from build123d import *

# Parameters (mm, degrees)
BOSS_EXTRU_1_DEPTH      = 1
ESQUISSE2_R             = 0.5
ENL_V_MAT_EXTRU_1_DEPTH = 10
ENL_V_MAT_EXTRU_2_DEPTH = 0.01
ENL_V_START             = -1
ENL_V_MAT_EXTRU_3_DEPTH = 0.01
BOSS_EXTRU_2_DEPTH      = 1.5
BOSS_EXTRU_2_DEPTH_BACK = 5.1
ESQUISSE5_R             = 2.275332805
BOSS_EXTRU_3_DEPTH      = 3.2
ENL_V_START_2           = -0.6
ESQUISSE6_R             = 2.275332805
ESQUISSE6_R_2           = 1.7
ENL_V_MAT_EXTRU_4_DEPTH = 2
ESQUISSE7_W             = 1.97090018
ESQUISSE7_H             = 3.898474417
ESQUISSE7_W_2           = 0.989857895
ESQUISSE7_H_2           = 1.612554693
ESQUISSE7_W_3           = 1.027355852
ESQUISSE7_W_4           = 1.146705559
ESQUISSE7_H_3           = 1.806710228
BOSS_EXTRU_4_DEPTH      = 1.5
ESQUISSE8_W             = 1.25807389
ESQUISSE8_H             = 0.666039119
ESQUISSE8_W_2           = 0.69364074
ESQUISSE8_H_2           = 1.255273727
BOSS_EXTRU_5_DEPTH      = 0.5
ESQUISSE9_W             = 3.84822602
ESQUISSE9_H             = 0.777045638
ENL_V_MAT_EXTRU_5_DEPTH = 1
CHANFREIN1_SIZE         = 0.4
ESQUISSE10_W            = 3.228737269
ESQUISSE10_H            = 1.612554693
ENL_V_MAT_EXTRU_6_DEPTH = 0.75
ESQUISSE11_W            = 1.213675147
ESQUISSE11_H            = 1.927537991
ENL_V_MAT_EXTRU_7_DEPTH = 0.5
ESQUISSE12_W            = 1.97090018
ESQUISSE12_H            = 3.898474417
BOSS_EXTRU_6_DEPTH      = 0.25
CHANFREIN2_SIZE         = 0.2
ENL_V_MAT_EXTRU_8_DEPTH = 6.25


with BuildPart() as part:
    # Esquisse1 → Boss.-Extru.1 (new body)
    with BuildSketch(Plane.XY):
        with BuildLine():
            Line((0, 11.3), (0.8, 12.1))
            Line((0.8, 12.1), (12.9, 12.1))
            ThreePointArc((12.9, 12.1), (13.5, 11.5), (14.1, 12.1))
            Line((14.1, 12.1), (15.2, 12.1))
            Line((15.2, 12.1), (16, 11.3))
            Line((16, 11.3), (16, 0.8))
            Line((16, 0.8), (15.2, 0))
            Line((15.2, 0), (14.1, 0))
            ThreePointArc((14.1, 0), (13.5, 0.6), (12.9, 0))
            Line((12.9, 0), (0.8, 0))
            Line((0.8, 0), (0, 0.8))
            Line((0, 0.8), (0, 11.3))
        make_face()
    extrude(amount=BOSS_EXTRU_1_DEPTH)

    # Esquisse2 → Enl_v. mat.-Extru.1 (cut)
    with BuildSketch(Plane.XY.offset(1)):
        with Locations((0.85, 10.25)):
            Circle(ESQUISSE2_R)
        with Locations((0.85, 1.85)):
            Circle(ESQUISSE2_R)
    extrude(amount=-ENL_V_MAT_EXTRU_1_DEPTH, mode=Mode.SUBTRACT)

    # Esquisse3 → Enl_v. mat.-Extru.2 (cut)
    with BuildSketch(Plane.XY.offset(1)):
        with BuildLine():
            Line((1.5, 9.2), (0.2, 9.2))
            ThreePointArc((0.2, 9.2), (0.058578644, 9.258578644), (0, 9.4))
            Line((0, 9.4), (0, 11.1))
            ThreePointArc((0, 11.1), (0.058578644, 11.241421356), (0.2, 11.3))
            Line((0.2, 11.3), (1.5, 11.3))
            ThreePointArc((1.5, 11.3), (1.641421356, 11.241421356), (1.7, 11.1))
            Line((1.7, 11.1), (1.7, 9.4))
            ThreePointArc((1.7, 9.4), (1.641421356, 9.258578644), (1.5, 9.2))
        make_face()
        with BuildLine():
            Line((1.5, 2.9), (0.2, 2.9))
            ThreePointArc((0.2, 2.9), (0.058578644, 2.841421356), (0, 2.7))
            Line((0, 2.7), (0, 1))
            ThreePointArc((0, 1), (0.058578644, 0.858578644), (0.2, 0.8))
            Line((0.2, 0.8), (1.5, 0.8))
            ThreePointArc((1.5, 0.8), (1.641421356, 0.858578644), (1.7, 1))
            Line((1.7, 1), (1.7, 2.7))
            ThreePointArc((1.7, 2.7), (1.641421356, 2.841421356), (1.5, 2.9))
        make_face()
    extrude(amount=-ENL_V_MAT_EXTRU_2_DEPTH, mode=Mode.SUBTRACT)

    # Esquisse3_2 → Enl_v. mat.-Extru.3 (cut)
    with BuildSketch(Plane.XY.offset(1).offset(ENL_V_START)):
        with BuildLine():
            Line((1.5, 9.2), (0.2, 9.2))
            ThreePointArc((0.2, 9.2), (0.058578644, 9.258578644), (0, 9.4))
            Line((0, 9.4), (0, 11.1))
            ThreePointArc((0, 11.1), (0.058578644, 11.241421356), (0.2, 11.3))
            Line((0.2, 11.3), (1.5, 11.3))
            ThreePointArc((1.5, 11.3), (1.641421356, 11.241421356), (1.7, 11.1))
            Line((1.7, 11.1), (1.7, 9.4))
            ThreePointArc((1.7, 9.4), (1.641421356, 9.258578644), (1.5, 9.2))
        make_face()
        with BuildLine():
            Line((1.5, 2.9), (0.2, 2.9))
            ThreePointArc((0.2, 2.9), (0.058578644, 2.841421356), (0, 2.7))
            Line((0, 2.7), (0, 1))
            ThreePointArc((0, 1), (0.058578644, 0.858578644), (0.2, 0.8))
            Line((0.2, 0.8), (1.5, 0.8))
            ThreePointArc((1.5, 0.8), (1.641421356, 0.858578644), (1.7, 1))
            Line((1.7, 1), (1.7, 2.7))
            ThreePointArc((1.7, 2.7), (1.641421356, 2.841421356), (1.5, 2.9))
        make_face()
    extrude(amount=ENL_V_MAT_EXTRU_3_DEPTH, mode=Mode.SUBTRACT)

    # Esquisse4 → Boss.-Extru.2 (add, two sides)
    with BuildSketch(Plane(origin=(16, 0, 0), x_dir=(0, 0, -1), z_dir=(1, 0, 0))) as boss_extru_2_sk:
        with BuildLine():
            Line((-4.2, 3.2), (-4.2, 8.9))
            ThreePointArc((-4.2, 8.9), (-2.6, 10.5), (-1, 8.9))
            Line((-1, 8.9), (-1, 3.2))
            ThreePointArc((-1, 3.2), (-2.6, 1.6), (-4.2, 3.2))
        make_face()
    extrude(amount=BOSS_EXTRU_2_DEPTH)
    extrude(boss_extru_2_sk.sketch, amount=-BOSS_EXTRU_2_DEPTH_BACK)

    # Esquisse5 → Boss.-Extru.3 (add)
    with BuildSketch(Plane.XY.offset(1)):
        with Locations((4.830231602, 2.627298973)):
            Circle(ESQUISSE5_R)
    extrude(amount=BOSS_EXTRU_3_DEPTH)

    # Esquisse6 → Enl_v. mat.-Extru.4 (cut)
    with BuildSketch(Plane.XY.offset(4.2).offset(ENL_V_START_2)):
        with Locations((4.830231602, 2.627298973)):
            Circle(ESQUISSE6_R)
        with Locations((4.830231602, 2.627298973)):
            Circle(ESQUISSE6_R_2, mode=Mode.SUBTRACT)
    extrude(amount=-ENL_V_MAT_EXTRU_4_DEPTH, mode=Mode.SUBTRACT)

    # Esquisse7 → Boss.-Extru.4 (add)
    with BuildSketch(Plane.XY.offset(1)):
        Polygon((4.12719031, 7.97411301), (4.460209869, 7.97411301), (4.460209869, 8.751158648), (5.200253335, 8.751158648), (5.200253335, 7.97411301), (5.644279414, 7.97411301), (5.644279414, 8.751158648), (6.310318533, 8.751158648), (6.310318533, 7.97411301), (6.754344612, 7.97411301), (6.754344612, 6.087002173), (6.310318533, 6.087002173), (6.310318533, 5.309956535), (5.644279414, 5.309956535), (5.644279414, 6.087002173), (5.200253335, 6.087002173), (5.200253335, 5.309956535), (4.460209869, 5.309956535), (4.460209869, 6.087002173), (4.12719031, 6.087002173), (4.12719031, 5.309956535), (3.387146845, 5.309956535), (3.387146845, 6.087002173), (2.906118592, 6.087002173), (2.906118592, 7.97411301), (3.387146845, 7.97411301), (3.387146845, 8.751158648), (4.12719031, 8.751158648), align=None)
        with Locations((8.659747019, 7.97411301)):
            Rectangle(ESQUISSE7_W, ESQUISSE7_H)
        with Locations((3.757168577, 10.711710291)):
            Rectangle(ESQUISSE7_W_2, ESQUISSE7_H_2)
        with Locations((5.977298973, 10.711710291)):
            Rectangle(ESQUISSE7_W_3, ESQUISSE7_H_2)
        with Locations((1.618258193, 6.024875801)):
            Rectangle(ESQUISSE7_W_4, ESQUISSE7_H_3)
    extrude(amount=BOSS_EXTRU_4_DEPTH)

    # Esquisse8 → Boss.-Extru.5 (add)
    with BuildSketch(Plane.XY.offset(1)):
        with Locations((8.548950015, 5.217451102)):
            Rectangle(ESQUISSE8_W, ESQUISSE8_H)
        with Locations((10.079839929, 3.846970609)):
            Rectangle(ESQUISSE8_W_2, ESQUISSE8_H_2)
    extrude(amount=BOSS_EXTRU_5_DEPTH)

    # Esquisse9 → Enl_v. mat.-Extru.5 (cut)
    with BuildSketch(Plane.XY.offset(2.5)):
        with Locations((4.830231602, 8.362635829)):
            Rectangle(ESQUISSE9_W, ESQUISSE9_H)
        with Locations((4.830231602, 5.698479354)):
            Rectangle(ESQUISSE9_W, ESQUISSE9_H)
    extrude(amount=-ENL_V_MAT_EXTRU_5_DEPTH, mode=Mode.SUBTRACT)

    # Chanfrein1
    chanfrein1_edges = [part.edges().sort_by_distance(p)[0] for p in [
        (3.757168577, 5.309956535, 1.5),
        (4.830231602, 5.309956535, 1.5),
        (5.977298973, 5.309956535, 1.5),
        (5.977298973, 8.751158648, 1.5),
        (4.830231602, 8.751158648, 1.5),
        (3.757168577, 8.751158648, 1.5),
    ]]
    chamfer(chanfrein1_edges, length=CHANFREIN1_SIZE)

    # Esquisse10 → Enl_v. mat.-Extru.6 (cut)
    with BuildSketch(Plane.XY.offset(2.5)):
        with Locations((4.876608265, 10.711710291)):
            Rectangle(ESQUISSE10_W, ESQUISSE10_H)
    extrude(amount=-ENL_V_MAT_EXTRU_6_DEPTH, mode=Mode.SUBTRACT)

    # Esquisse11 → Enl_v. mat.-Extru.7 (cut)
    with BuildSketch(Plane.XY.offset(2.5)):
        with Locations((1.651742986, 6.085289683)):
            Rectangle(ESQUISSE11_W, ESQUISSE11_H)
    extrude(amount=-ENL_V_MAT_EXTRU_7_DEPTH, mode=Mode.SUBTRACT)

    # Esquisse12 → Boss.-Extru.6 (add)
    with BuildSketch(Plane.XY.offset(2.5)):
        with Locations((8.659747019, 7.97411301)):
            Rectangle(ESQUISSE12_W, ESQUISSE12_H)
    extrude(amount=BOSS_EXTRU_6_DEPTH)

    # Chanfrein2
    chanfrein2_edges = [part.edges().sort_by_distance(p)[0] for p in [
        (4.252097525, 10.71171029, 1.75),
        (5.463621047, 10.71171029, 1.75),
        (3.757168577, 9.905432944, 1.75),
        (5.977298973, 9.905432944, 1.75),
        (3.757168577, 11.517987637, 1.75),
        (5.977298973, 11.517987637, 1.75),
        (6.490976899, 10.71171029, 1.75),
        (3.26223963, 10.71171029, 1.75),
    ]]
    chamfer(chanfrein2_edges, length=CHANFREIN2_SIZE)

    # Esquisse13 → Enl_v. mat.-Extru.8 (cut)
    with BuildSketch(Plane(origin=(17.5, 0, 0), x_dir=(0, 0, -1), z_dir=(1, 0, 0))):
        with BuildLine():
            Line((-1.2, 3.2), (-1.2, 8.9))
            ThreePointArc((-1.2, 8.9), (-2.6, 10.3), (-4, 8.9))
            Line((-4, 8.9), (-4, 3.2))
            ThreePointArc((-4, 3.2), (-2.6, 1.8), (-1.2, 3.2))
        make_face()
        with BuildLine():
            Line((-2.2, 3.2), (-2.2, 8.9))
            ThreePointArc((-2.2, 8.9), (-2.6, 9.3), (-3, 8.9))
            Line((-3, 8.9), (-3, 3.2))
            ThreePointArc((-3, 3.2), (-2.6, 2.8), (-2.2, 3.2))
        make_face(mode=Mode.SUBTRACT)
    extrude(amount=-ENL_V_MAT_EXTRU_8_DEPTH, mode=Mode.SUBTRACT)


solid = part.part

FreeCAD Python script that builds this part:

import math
import FreeCAD as App
import Part
import Sketcher
from FreeCAD import Vector


def edges_at(feature, points):
    """Names of the edges that pass closest to the given points."""
    edges = feature.Shape.Edges
    near = lambda p: min(range(len(edges)), key=lambda i: edges[i].distToShape(Part.Vertex(*p))[0])
    return sorted({f"Edge{near(p) + 1}" for p in points})


def add_polygon(sketch, points):
    """Adds a closed chain of lines whose ends are joined by coincident constraints."""
    first, n = sketch.GeometryCount, len(points)
    for a, b in zip(points, points[1:] + points[:1]):
        sketch.addGeometry(Part.LineSegment(App.Vector(*a, 0), App.Vector(*b, 0)), False)
    for i in range(n):
        sketch.addConstraint(Sketcher.Constraint("Coincident", first + i, 2, first + (i + 1) % n, 1))

doc = App.newDocument("Part")
body = doc.addObject("PartDesign::Body", "Body")

# Sketch on XY plane
sketch1 = body.newObject("Sketcher::SketchObject", "Sketch")
sketch1.AttachmentSupport = (doc.getObject("XY_Plane"), [""])
sketch1.MapMode = "FlatFace"
sketch1.addGeometry([
    Part.LineSegment(Vector(0.8, 12.1, 0), Vector(0, 11.3, 0)),  # 0
    Part.LineSegment(Vector(0, 11.3, 0), Vector(0, 0.8, 0)),  # 1
    Part.LineSegment(Vector(0, 0.8, 0), Vector(0.8, 0, 0)),  # 2
    Part.LineSegment(Vector(0.8, 0, 0), Vector(12.9, 0, 0)),  # 3
    Part.ArcOfCircle(Part.Circle(Vector(13.5, 0, 0), Vector(0, 0, 1), 0.6), math.radians(0), math.radians(180)),  # 4
    Part.LineSegment(Vector(14.1, 0, 0), Vector(15.2, 0, 0)),  # 5
    Part.LineSegment(Vector(15.2, 0, 0), Vector(16, 0.8, 0)),  # 6
    Part.LineSegment(Vector(16, 0.8, 0), Vector(16, 11.3, 0)),  # 7
    Part.LineSegment(Vector(16, 11.3, 0), Vector(15.2, 12.1, 0)),  # 8
    Part.LineSegment(Vector(15.2, 12.1, 0), Vector(14.1, 12.1, 0)),  # 9
    Part.ArcOfCircle(Part.Circle(Vector(13.5, 12.1, 0), Vector(0, 0, 1), 0.6), math.radians(180), math.radians(360)),  # 10
    Part.LineSegment(Vector(12.9, 12.1, 0), Vector(0.8, 12.1, 0)),  # 11
], False)
sketch1.addConstraint([
    Sketcher.Constraint("Coincident", 0, 2, 1, 1),
    Sketcher.Constraint("Coincident", 1, 2, 2, 1),
    Sketcher.Constraint("Coincident", 2, 2, 3, 1),
    Sketcher.Constraint("Coincident", 3, 2, 4, 2),
    Sketcher.Constraint("Coincident", 4, 1, 5, 1),
    Sketcher.Constraint("Coincident", 5, 2, 6, 1),
    Sketcher.Constraint("Coincident", 6, 2, 7, 1),
    Sketcher.Constraint("Coincident", 7, 2, 8, 1),
    Sketcher.Constraint("Coincident", 8, 2, 9, 1),
    Sketcher.Constraint("Coincident", 9, 2, 10, 2),
    Sketcher.Constraint("Coincident", 10, 1, 11, 1),
    Sketcher.Constraint("Coincident", 11, 2, 0, 1),
    Sketcher.Constraint("Vertical", 1),
    Sketcher.Constraint("Horizontal", 3),
    Sketcher.Constraint("Horizontal", 5),
    Sketcher.Constraint("Vertical", 7),
    Sketcher.Constraint("Horizontal", 9),
    Sketcher.Constraint("Horizontal", 11),
    Sketcher.Constraint("Equal", 4, 10),
    Sketcher.Constraint("PointOnObject", 4, 3, -1),
    Sketcher.Constraint("PointOnObject", 0, 2, -2),
    Sketcher.Constraint("PointOnObject", 2, 2, -1),
    Sketcher.Constraint("PointOnObject", 4, 1, -1),
    Sketcher.Constraint("Perpendicular", 0, 2),
    Sketcher.Constraint("Perpendicular", 2, 6),
    Sketcher.Constraint("Perpendicular", 6, 8),
    Sketcher.Constraint("Horizontal", 1, 2, 6, 2),
    Sketcher.Constraint("Horizontal", 0, 2, 7, 2),
    Sketcher.Constraint("Horizontal", 10, 3, 8, 2),
    Sketcher.Constraint("Horizontal", 9, 2, 10, 1),
    Sketcher.Constraint("Vertical", 4, 3, 10, 3),
    Sketcher.Constraint("Vertical", 5, 2, 8, 2),
    Sketcher.Constraint("Vertical", 2, 2, 11, 2),
    Sketcher.Constraint("Radius", 4, 0.6),
    Sketcher.Constraint("DistanceX", 3, 1, 3, 2, 12.1),
    Sketcher.Constraint("DistanceX", 5, 1, 5, 2, 1.1),
    Sketcher.Constraint("DistanceY", 1, 2, 1, 1, 10.5),
    Sketcher.Constraint("DistanceX", -1, 1, 6, 2, 16.0),
])
pad1 = body.newObject("PartDesign::Pad", "Pad")
pad1.Profile = sketch1
pad1.Length = 1

# Sketch on XY plane
sketch2 = body.newObject("Sketcher::SketchObject", "Sketch001")
sketch2.AttachmentSupport = (doc.getObject("XY_Plane"), [""])
sketch2.MapMode = "FlatFace"
sketch2.AttachmentOffset = App.Placement(Vector(0, 0, 1), App.Rotation())
sketch2.addGeometry([
    Part.Circle(Vector(0.85, 10.25, 0), Vector(0, 0, 1), 0.5),
    Part.Circle(Vector(0.85, 1.85, 0), Vector(0, 0, 1), 0.5),
], False)
sketch2.addConstraint([
    Sketcher.Constraint("Equal", 0, 1),
    Sketcher.Constraint("Vertical", 0, 3, 1, 3),
    Sketcher.Constraint("Diameter", 0, 1.0),
    Sketcher.Constraint("DistanceY", 1, 3, 0, 3, 8.4),
    Sketcher.Constraint("DistanceX", -1, 1, 0, 3, 0.85),
    Sketcher.Constraint("DistanceY", -1, 1, 0, 3, 10.25),
])
pocket1 = body.newObject("PartDesign::Pocket", "Pocket")
pocket1.Profile = sketch2
pocket1.Length = 10

# Sketch on XY plane
sketch3 = body.newObject("Sketcher::SketchObject", "Sketch002")
sketch3.AttachmentSupport = (doc.getObject("XY_Plane"), [""])
sketch3.MapMode = "FlatFace"
sketch3.AttachmentOffset = App.Placement(Vector(0, 0, 1), App.Rotation())
sketch3.addGeometry([
    Part.LineSegment(Vector(0.2, 9.2, 0), Vector(1.5, 9.2, 0)),  # 0
    Part.ArcOfCircle(Part.Circle(Vector(1.5, 9.4, 0), Vector(0, 0, 1), 0.2), math.radians(-90), math.radians(0)),  # 1
    Part.LineSegment(Vector(1.7, 9.4, 0), Vector(1.7, 11.1, 0)),  # 2
    Part.ArcOfCircle(Part.Circle(Vector(1.5, 11.1, 0), Vector(0, 0, 1), 0.2), math.radians(0), math.radians(90)),  # 3
    Part.LineSegment(Vector(1.5, 11.3, 0), Vector(0.2, 11.3, 0)),  # 4
    Part.ArcOfCircle(Part.Circle(Vector(0.2, 11.1, 0), Vector(0, 0, 1), 0.2), math.radians(90), math.radians(180)),  # 5
    Part.LineSegment(Vector(0, 11.1, 0), Vector(0, 9.4, 0)),  # 6
    Part.ArcOfCircle(Part.Circle(Vector(0.2, 9.4, 0), Vector(0, 0, 1), 0.2), math.radians(-180), math.radians(-90)),  # 7
    Part.LineSegment(Vector(1.5, 2.9, 0), Vector(0.2, 2.9, 0)),  # 8
    Part.ArcOfCircle(Part.Circle(Vector(0.2, 2.7, 0), Vector(0, 0, 1), 0.2), math.radians(90), math.radians(180)),  # 9
    Part.LineSegment(Vector(0, 2.7, 0), Vector(0, 1, 0)),  # 10
    Part.ArcOfCircle(Part.Circle(Vector(0.2, 1, 0), Vector(0, 0, 1), 0.2), math.radians(-180), math.radians(-90)),  # 11
    Part.LineSegment(Vector(0.2, 0.8, 0), Vector(1.5, 0.8, 0)),  # 12
    Part.ArcOfCircle(Part.Circle(Vector(1.5, 1, 0), Vector(0, 0, 1), 0.2), math.radians(-90), math.radians(0)),  # 13
    Part.LineSegment(Vector(1.7, 1, 0), Vector(1.7, 2.7, 0)),  # 14
    Part.ArcOfCircle(Part.Circle(Vector(1.5, 2.7, 0), Vector(0, 0, 1), 0.2), math.radians(0), math.radians(90)),  # 15
], False)
sketch3.addConstraint([
    Sketcher.Constraint("Tangent", 0, 2, 1, 1),
    Sketcher.Constraint("Tangent", 1, 2, 2, 1),
    Sketcher.Constraint("Tangent", 2, 2, 3, 1),
    Sketcher.Constraint("Tangent", 3, 2, 4, 1),
    Sketcher.Constraint("Tangent", 4, 2, 5, 1),
    Sketcher.Constraint("Tangent", 5, 2, 6, 1),
    Sketcher.Constraint("Tangent", 6, 2, 7, 1),
    Sketcher.Constraint("Tangent", 7, 2, 0, 1),
    Sketcher.Constraint("Tangent", 8, 2, 9, 1),
    Sketcher.Constraint("Tangent", 9, 2, 10, 1),
    Sketcher.Constraint("Tangent", 10, 2, 11, 1),
    Sketcher.Constraint("Tangent", 11, 2, 12, 1),
    Sketcher.Constraint("Tangent", 12, 2, 13, 1),
    Sketcher.Constraint("Tangent", 13, 2, 14, 1),
    Sketcher.Constraint("Tangent", 14, 2, 15, 1),
    Sketcher.Constraint("Tangent", 15, 2, 8, 1),
    Sketcher.Constraint("Horizontal", 0),
    Sketcher.Constraint("Vertical", 2),
    Sketcher.Constraint("Horizontal", 4),
    Sketcher.Constraint("Vertical", 6),
    Sketcher.Constraint("Horizontal", 8),
    Sketcher.Constraint("Vertical", 10),
    Sketcher.Constraint("Horizontal", 12),
    Sketcher.Constraint("Vertical", 14),
    Sketcher.Constraint("Equal", 1, 3),
    Sketcher.Constraint("Equal", 3, 5),
    Sketcher.Constraint("Equal", 5, 7),
    Sketcher.Constraint("Equal", 7, 9),
    Sketcher.Constraint("Equal", 9, 11),
    Sketcher.Constraint("Equal", 11, 13),
    Sketcher.Constraint("Equal", 13, 15),
    Sketcher.Constraint("PointOnObject", 5, 2, -2),
    Sketcher.Constraint("PointOnObject", 9, 2, -2),
    Sketcher.Constraint("Vertical", 3, 3, 13, 3),
    Sketcher.Constraint("Equal", 6, 10),
    Sketcher.Constraint("Radius", 1, 0.2),
    Sketcher.Constraint("DistanceX", 0, 1, 0, 2, 1.3),
    Sketcher.Constraint("DistanceY", 2, 1, 2, 2, 1.7),
    Sketcher.Constraint("DistanceY", -1, 1, 11, 3, 1.0),
    Sketcher.Constraint("DistanceY", -1, 1, 1, 3, 9.4),
])
pocket2 = body.newObject("PartDesign::Pocket", "Pocket001")
pocket2.Profile = sketch3
pocket2.Length = 0.01

# Sketch on XY plane
sketch4 = body.newObject("Sketcher::SketchObject", "Sketch003")
sketch4.AttachmentSupport = (doc.getObject("XY_Plane"), [""])
sketch4.MapMode = "FlatFace"
sketch4.addGeometry([
    Part.LineSegment(Vector(0.2, 9.2, 0), Vector(1.5, 9.2, 0)),  # 0
    Part.ArcOfCircle(Part.Circle(Vector(1.5, 9.4, 0), Vector(0, 0, 1), 0.2), math.radians(-90), math.radians(0)),  # 1
    Part.LineSegment(Vector(1.7, 9.4, 0), Vector(1.7, 11.1, 0)),  # 2
    Part.ArcOfCircle(Part.Circle(Vector(1.5, 11.1, 0), Vector(0, 0, 1), 0.2), math.radians(0), math.radians(90)),  # 3
    Part.LineSegment(Vector(1.5, 11.3, 0), Vector(0.2, 11.3, 0)),  # 4
    Part.ArcOfCircle(Part.Circle(Vector(0.2, 11.1, 0), Vector(0, 0, 1), 0.2), math.radians(90), math.radians(180)),  # 5
    Part.LineSegment(Vector(0, 11.1, 0), Vector(0, 9.4, 0)),  # 6
    Part.ArcOfCircle(Part.Circle(Vector(0.2, 9.4, 0), Vector(0, 0, 1), 0.2), math.radians(-180), math.radians(-90)),  # 7
    Part.LineSegment(Vector(1.5, 2.9, 0), Vector(0.2, 2.9, 0)),  # 8
    Part.ArcOfCircle(Part.Circle(Vector(0.2, 2.7, 0), Vector(0, 0, 1), 0.2), math.radians(90), math.radians(180)),  # 9
    Part.LineSegment(Vector(0, 2.7, 0), Vector(0, 1, 0)),  # 10
    Part.ArcOfCircle(Part.Circle(Vector(0.2, 1, 0), Vector(0, 0, 1), 0.2), math.radians(-180), math.radians(-90)),  # 11
    Part.LineSegment(Vector(0.2, 0.8, 0), Vector(1.5, 0.8, 0)),  # 12
    Part.ArcOfCircle(Part.Circle(Vector(1.5, 1, 0), Vector(0, 0, 1), 0.2), math.radians(-90), math.radians(0)),  # 13
    Part.LineSegment(Vector(1.7, 1, 0), Vector(1.7, 2.7, 0)),  # 14
    Part.ArcOfCircle(Part.Circle(Vector(1.5, 2.7, 0), Vector(0, 0, 1), 0.2), math.radians(0), math.radians(90)),  # 15
], False)
sketch4.addConstraint([
    Sketcher.Constraint("Tangent", 0, 2, 1, 1),
    Sketcher.Constraint("Tangent", 1, 2, 2, 1),
    Sketcher.Constraint("Tangent", 2, 2, 3, 1),
    Sketcher.Constraint("Tangent", 3, 2, 4, 1),
    Sketcher.Constraint("Tangent", 4, 2, 5, 1),
    Sketcher.Constraint("Tangent", 5, 2, 6, 1),
    Sketcher.Constraint("Tangent", 6, 2, 7, 1),
    Sketcher.Constraint("Tangent", 7, 2, 0, 1),
    Sketcher.Constraint("Tangent", 8, 2, 9, 1),
    Sketcher.Constraint("Tangent", 9, 2, 10, 1),
    Sketcher.Constraint("Tangent", 10, 2, 11, 1),
    Sketcher.Constraint("Tangent", 11, 2, 12, 1),
    Sketcher.Constraint("Tangent", 12, 2, 13, 1),
    Sketcher.Constraint("Tangent", 13, 2, 14, 1),
    Sketcher.Constraint("Tangent", 14, 2, 15, 1),
    Sketcher.Constraint("Tangent", 15, 2, 8, 1),
    Sketcher.Constraint("Horizontal", 0),
    Sketcher.Constraint("Vertical", 2),
    Sketcher.Constraint("Horizontal", 4),
    Sketcher.Constraint("Vertical", 6),
    Sketcher.Constraint("Horizontal", 8),
    Sketcher.Constraint("Vertical", 10),
    Sketcher.Constraint("Horizontal", 12),
    Sketcher.Constraint("Vertical", 14),
    Sketcher.Constraint("Equal", 1, 3),
    Sketcher.Constraint("Equal", 3, 5),
    Sketcher.Constraint("Equal", 5, 7),
    Sketcher.Constraint("Equal", 7, 9),
    Sketcher.Constraint("Equal", 9, 11),
    Sketcher.Constraint("Equal", 11, 13),
    Sketcher.Constraint("Equal", 13, 15),
    Sketcher.Constraint("PointOnObject", 5, 2, -2),
    Sketcher.Constraint("PointOnObject", 9, 2, -2),
    Sketcher.Constraint("Vertical", 3, 3, 13, 3),
    Sketcher.Constraint("Equal", 6, 10),
    Sketcher.Constraint("Radius", 1, 0.2),
    Sketcher.Constraint("DistanceX", 0, 1, 0, 2, 1.3),
    Sketcher.Constraint("DistanceY", 2, 1, 2, 2, 1.7),
    Sketcher.Constraint("DistanceY", -1, 1, 11, 3, 1.0),
    Sketcher.Constraint("DistanceY", -1, 1, 1, 3, 9.4),
])
pocket3 = body.newObject("PartDesign::Pocket", "Pocket002")
pocket3.Profile = sketch4
pocket3.Length = 0.01
pocket3.Reversed = True

# Sketch on YZ plane
sketch5 = body.newObject("Sketcher::SketchObject", "Sketch004")
sketch5.AttachmentSupport = (doc.getObject("YZ_Plane"), [""])
sketch5.MapMode = "FlatFace"
sketch5.AttachmentOffset = App.Placement(Vector(0, 0, 16), App.Rotation())
sketch5.addGeometry([
    Part.LineSegment(Vector(8.9, 4.2, 0), Vector(3.2, 4.2, 0)),
    Part.ArcOfCircle(Part.Circle(Vector(3.2, 2.6, 0), Vector(0, 0, 1), 1.6), math.radians(90), math.radians(270)),
    Part.LineSegment(Vector(3.2, 1, 0), Vector(8.9, 1, 0)),
    Part.ArcOfCircle(Part.Circle(Vector(8.9, 2.6, 0), Vector(0, 0, 1), 1.6), math.radians(-90), math.radians(90)),
], False)
sketch5.addConstraint([
    Sketcher.Constraint("Tangent", 0, 2, 1, 1),
    Sketcher.Constraint("Tangent", 1, 2, 2, 1),
    Sketcher.Constraint("Tangent", 2, 2, 3, 1),
    Sketcher.Constraint("Tangent", 3, 2, 0, 1),
    Sketcher.Constraint("Horizontal", 0),
    Sketcher.Constraint("Horizontal", 2),
    Sketcher.Constraint("Radius", 1, 1.6),
    Sketcher.Constraint("DistanceX", 0, 2, 0, 1, 5.7),
    Sketcher.Constraint("DistanceY", -1, 1, 1, 2, 1.0),
    Sketcher.Constraint("DistanceX", -1, 1, 1, 3, 3.2),
])
pad2 = body.newObject("PartDesign::Pad", "Pad001")
pad2.Profile = sketch5
pad2.Type = "TwoLengths"
pad2.Length = 1.5
pad2.Length2 = 5.1

# Sketch on XY plane
sketch6 = body.newObject("Sketcher::SketchObject", "Sketch005")
sketch6.AttachmentSupport = (doc.getObject("XY_Plane"), [""])
sketch6.MapMode = "FlatFace"
sketch6.AttachmentOffset = App.Placement(Vector(0, 0, 1), App.Rotation())
sketch6.addGeometry(Part.Circle(Vector(4.830232, 2.627299, 0), Vector(0, 0, 1), 2.275333), False)
sketch6.addConstraint([
    Sketcher.Constraint("Diameter", 0, 4.550666),
    Sketcher.Constraint("DistanceY", -1, 1, 0, 3, 2.627299),
    Sketcher.Constraint("DistanceX", -1, 1, 0, 3, 4.830232),
])
pad3 = body.newObject("PartDesign::Pad", "Pad002")
pad3.Profile = sketch6
pad3.Length = 3.2

# Sketch on XY plane
sketch7 = body.newObject("Sketcher::SketchObject", "Sketch006")
sketch7.AttachmentSupport = (doc.getObject("XY_Plane"), [""])
sketch7.MapMode = "FlatFace"
sketch7.AttachmentOffset = App.Placement(Vector(0, 0, 3.6), App.Rotation())
sketch7.addGeometry([
    Part.Circle(Vector(4.830232, 2.627299, 0), Vector(0, 0, 1), 2.275333),
    Part.Circle(Vector(4.830232, 2.627299, 0), Vector(0, 0, 1), 1.7),
], False)
sketch7.addConstraint([
    Sketcher.Constraint("Coincident", 1, 3, 0, 3),
    Sketcher.Constraint("Diameter", 1, 3.4),
    Sketcher.Constraint("Diameter", 0, 4.550666),
    Sketcher.Constraint("DistanceY", -1, 1, 0, 3, 2.627299),
    Sketcher.Constraint("DistanceX", -1, 1, 0, 3, 4.830232),
])
pocket4 = body.newObject("PartDesign::Pocket", "Pocket003")
pocket4.Profile = sketch7
pocket4.Length = 2

# Sketch on XY plane
sketch8 = body.newObject("Sketcher::SketchObject", "Sketch007")
sketch8.AttachmentSupport = (doc.getObject("XY_Plane"), [""])
sketch8.MapMode = "FlatFace"
sketch8.AttachmentOffset = App.Placement(Vector(0, 0, 1), App.Rotation())
add_polygon(sketch8, [(4.46021, 7.974113), (4.12719, 7.974113), (4.12719, 8.751159), (3.387147, 8.751159), (3.387147, 7.974113), (2.906119, 7.974113), (2.906119, 6.087002), (3.387147, 6.087002), (3.387147, 5.309957), (4.12719, 5.309957), (4.12719, 6.087002), (4.46021, 6.087002), (4.46021, 5.309957), (5.200253, 5.309957), (5.200253, 6.087002), (5.644279, 6.087002), (5.644279, 5.309957), (6.310319, 5.309957), (6.310319, 6.087002), (6.754345, 6.087002), (6.754345, 7.974113), (6.310319, 7.974113), (6.310319, 8.751159), (5.644279, 8.751159), (5.644279, 7.974113), (5.200253, 7.974113), (5.200253, 8.751159), (4.46021, 8.751159)])  # lines 0-27
add_polygon(sketch8, [(7.674297, 9.92335), (7.674297, 6.024876), (9.645197, 6.024876), (9.645197, 9.92335)])  # lines 28-31
add_polygon(sketch8, [(3.26224, 11.517988), (3.26224, 9.905433), (4.252098, 9.905433), (4.252098, 11.517988)])  # lines 32-35
add_polygon(sketch8, [(5.463621, 11.517988), (5.463621, 9.905433), (6.490977, 9.905433), (6.490977, 11.517988)])  # lines 36-39
add_polygon(sketch8, [(1.044905, 6.928231), (1.044905, 5.121521), (2.191611, 5.121521), (2.191611, 6.928231)])  # lines 40-43
sketch8.addConstraint([
    Sketcher.Constraint("Horizontal", 0),
    Sketcher.Constraint("Vertical", 1),
    Sketcher.Constraint("Horizontal", 2),
    Sketcher.Constraint("Vertical", 3),
    Sketcher.Constraint("Horizontal", 4),
    Sketcher.Constraint("Vertical", 5),
    Sketcher.Constraint("Horizontal", 6),
    Sketcher.Constraint("Vertical", 7),
    Sketcher.Constraint("Horizontal", 8),
    Sketcher.Constraint("Vertical", 9),
    Sketcher.Constraint("Horizontal", 10),
    Sketcher.Constraint("Vertical", 11),
    Sketcher.Constraint("Horizontal", 12),
    Sketcher.Constraint("Vertical", 13),
    Sketcher.Constraint("Horizontal", 14),
    Sketcher.Constraint("Vertical", 15),
    Sketcher.Constraint("Horizontal", 16),
    Sketcher.Constraint("Vertical", 17),
    Sketcher.Constraint("Horizontal", 18),
    Sketcher.Constraint("Vertical", 19),
    Sketcher.Constraint("Horizontal", 20),
    Sketcher.Constraint("Vertical", 21),
    Sketcher.Constraint("Horizontal", 22),
    Sketcher.Constraint("Vertical", 23),
    Sketcher.Constraint("Horizontal", 24),
    Sketcher.Constraint("Vertical", 25),
    Sketcher.Constraint("Horizontal", 26),
    Sketcher.Constraint("Vertical", 27),
    Sketcher.Constraint("Vertical", 28),
    Sketcher.Constraint("Horizontal", 29),
    Sketcher.Constraint("Vertical", 30),
    Sketcher.Constraint("Horizontal", 31),
    Sketcher.Constraint("Vertical", 32),
    Sketcher.Constraint("Horizontal", 33),
    Sketcher.Constraint("Vertical", 34),
    Sketcher.Constraint("Horizontal", 35),
    Sketcher.Constraint("Vertical", 36),
    Sketcher.Constraint("Horizontal", 37),
    Sketcher.Constraint("Vertical", 38),
    Sketcher.Constraint("Horizontal", 39),
    Sketcher.Constraint("Vertical", 40),
    Sketcher.Constraint("Horizontal", 41),
    Sketcher.Constraint("Vertical", 42),
    Sketcher.Constraint("Horizontal", 43),
    Sketcher.Constraint("Horizontal", 0, 2, 3, 2),
    Sketcher.Constraint("Horizontal", 6, 2, 9, 2),
    Sketcher.Constraint("Horizontal", 8, 2, 11, 2),
    Sketcher.Constraint("Horizontal", 10, 2, 13, 2),
    Sketcher.Constraint("Horizontal", 12, 2, 15, 2),
    Sketcher.Constraint("Horizontal", 14, 2, 17, 2),
    Sketcher.Constraint("Horizontal", 4, 2, 19, 2),
    Sketcher.Constraint("Horizontal", 2, 2, 21, 2),
    Sketcher.Constraint("Horizontal", 20, 2, 23, 2),
    Sketcher.Constraint("Horizontal", 22, 2, 25, 2),
    Sketcher.Constraint("Horizontal", 33, 2, 36, 2),
    Sketcher.Constraint("Horizontal", 35, 2, 38, 2),
    Sketcher.Constraint("Vertical", 3, 2, 6, 2),
    Sketcher.Constraint("Vertical", 1, 2, 8, 2),
    Sketcher.Constraint("Vertical", 17, 2, 20, 2),
    Sketcher.Constraint("Vertical", 15, 2, 22, 2),
    Sketcher.Constraint("Vertical", 13, 2, 24, 2),
    Sketcher.Constraint("Vertical", 11, 2, 26, 2),
    Sketcher.Constraint("Equal", 8, 12),
    Sketcher.Constraint("Equal", 14, 18),
    Sketcher.Constraint("Equal", 3, 7),
    Sketcher.Constraint("DistanceX", 29, 1, 29, 2, 1.9709),
    Sketcher.Constraint("DistanceX", 0, 2, 0, 1, 0.33302),
    Sketcher.Constraint("DistanceX", 4, 2, 4, 1, 0.481028),
    Sketcher.Constraint("DistanceX", 16, 1, 16, 2, 0.666039),
    Sketcher.Constraint("DistanceY", 5, 2, 5, 1, 1.887111),
    Sketcher.Constraint("DistanceY", 40, 2, 40, 1, 1.80671),
    Sketcher.Constraint("DistanceX", 2, 2, 2, 1, 0.740043),
    Sketcher.Constraint("DistanceX", 14, 1, 14, 2, 0.444026),
    Sketcher.Constraint("DistanceX", 33, 1, 33, 2, 0.989858),
    Sketcher.Constraint("DistanceX", 37, 1, 37, 2, 1.027356),
    Sketcher.Constraint("DistanceX", 41, 1, 41, 2, 1.146706),
    Sketcher.Constraint("DistanceY", 1, 1, 1, 2, 0.777046),
    Sketcher.Constraint("DistanceY", 28, 2, 28, 1, 3.898474),
    Sketcher.Constraint("DistanceY", 32, 2, 32, 1, 1.612555),
    Sketcher.Constraint("DistanceX", -1, 1, 0, 2, 4.12719),
    Sketcher.Constraint("DistanceY", -1, 1, 1, 2, 8.751159),
    Sketcher.Constraint("DistanceY", -1, 1, 30, 2, 9.92335),
    Sketcher.Constraint("DistanceX", -1, 1, 32, 2, 3.26224),
    Sketcher.Constraint("DistanceX", -1, 1, 36, 2, 5.463621),
    Sketcher.Constraint("DistanceY", -1, 1, 40, 2, 5.121521),
    Sketcher.Constraint("DistanceX", -1, 1, 41, 2, 2.191611),
    Sketcher.Constraint("DistanceX", 17, 2, 28, 2, 1.363978),
    Sketcher.Constraint("DistanceY", 3, 2, 32, 2, 1.93132),
])
pad4 = body.newObject("PartDesign::Pad", "Pad003")
pad4.Profile = sketch8
pad4.Length = 1.5

# Sketch on XY plane
sketch9 = body.newObject("Sketcher::SketchObject", "Sketch008")
sketch9.AttachmentSupport = (doc.getObject("XY_Plane"), [""])
sketch9.MapMode = "FlatFace"
sketch9.AttachmentOffset = App.Placement(Vector(0, 0, 1), App.Rotation())
add_polygon(sketch9, [(7.919913, 5.550471), (7.919913, 4.884432), (9.177987, 4.884432), (9.177987, 5.550471)])  # lines 0-3
add_polygon(sketch9, [(9.73302, 4.474607), (9.73302, 3.219334), (10.42666, 3.219334), (10.42666, 4.474607)])  # lines 4-7
sketch9.addConstraint([
    Sketcher.Constraint("Vertical", 0),
    Sketcher.Constraint("Horizontal", 1),
    Sketcher.Constraint("Vertical", 2),
    Sketcher.Constraint("Horizontal", 3),
    Sketcher.Constraint("Vertical", 4),
    Sketcher.Constraint("Horizontal", 5),
    Sketcher.Constraint("Vertical", 6),
    Sketcher.Constraint("Horizontal", 7),
    Sketcher.Constraint("DistanceX", 5, 1, 5, 2, 0.693641),
    Sketcher.Constraint("DistanceY", 0, 2, 0, 1, 0.666039),
    Sketcher.Constraint("DistanceX", 1, 1, 1, 2, 1.258074),
    Sketcher.Constraint("DistanceY", 4, 2, 4, 1, 1.255274),
    Sketcher.Constraint("DistanceY", -1, 1, 0, 2, 4.884432),
    Sketcher.Constraint("DistanceX", -1, 1, 4, 2, 9.73302),
    Sketcher.Constraint("DistanceX", -1, 1, 0, 2, 7.919913),
    Sketcher.Constraint("DistanceY", -1, 1, 4, 2, 3.219334),
])
pad5 = body.newObject("PartDesign::Pad", "Pad004")
pad5.Profile = sketch9
pad5.Length = 0.5

# Sketch on XY plane
sketch10 = body.newObject("Sketcher::SketchObject", "Sketch009")
sketch10.AttachmentSupport = (doc.getObject("XY_Plane"), [""])
sketch10.MapMode = "FlatFace"
sketch10.AttachmentOffset = App.Placement(Vector(0, 0, 2.5), App.Rotation())
add_polygon(sketch10, [(2.906119, 8.751159), (2.906119, 7.974113), (6.754345, 7.974113), (6.754345, 8.751159)])  # lines 0-3
add_polygon(sketch10, [(2.906119, 6.087002), (2.906119, 5.309957), (6.754345, 5.309957), (6.754345, 6.087002)])  # lines 4-7
sketch10.addConstraint([
    Sketcher.Constraint("Vertical", 0),
    Sketcher.Constraint("Horizontal", 1),
    Sketcher.Constraint("Vertical", 2),
    Sketcher.Constraint("Horizontal", 3),
    Sketcher.Constraint("Vertical", 4),
    Sketcher.Constraint("Horizontal", 5),
    Sketcher.Constraint("Vertical", 6),
    Sketcher.Constraint("Horizontal", 7),
    Sketcher.Constraint("Vertical", 3, 2, 4, 2),
    Sketcher.Constraint("Vertical", 2, 2, 5, 2),
    Sketcher.Constraint("Equal", 2, 4),
    Sketcher.Constraint("DistanceX", 1, 1, 1, 2, 3.848226),
    Sketcher.Constraint("DistanceY", 0, 2, 0, 1, 0.777046),
    Sketcher.Constraint("DistanceX", -1, 1, 0, 2, 2.906119),
    Sketcher.Constraint("DistanceY", -1, 1, 2, 2, 8.751159),
    Sketcher.Constraint("DistanceY", 6, 2, 1, 2, 1.887111),
])
pocket5 = body.newObject("PartDesign::Pocket", "Pocket004")
pocket5.Profile = sketch10
pocket5.Length = 1
doc.recompute()

chamfer = body.newObject("PartDesign::Chamfer", "Chamfer")
chamfer.Base = (pocket5, edges_at(pocket5, [
    (3.757, 5.31, 1.5),
    (4.83, 5.31, 1.5),
    (5.977, 5.31, 1.5),
    (5.977, 8.751, 1.5),
    (4.83, 8.751, 1.5),
    (3.757, 8.751, 1.5),
]))
chamfer.Size = 0.4

# Sketch on XY plane
sketch11 = body.newObject("Sketcher::SketchObject", "Sketch010")
sketch11.AttachmentSupport = (doc.getObject("XY_Plane"), [""])
sketch11.MapMode = "FlatFace"
sketch11.AttachmentOffset = App.Placement(Vector(0, 0, 2.5), App.Rotation())
add_polygon(sketch11, [(3.26224, 11.517988), (3.26224, 9.905433), (6.490977, 9.905433), (6.490977, 11.517988)])  # lines 0-3
sketch11.addConstraint([
    Sketcher.Constraint("Vertical", 0),
    Sketcher.Constraint("Horizontal", 1),
    Sketcher.Constraint("Vertical", 2),
    Sketcher.Constraint("Horizontal", 3),
    Sketcher.Constraint("DistanceX", 1, 1, 1, 2, 3.228737),
    Sketcher.Constraint("DistanceY", 0, 2, 0, 1, 1.612555),
    Sketcher.Constraint("DistanceX", -1, 1, 0, 2, 3.26224),
    Sketcher.Constraint("DistanceY", -1, 1, 0, 2, 9.905433),
])
pocket6 = body.newObject("PartDesign::Pocket", "Pocket005")
pocket6.Profile = sketch11
pocket6.Length = 0.75

# Sketch on XY plane
sketch12 = body.newObject("Sketcher::SketchObject", "Sketch011")
sketch12.AttachmentSupport = (doc.getObject("XY_Plane"), [""])
sketch12.MapMode = "FlatFace"
sketch12.AttachmentOffset = App.Placement(Vector(0, 0, 2.5), App.Rotation())
add_polygon(sketch12, [(1.044905, 7.049059), (1.044905, 5.121521), (2.258581, 5.121521), (2.258581, 7.049059)])  # lines 0-3
sketch12.addConstraint([
    Sketcher.Constraint("Vertical", 0),
    Sketcher.Constraint("Horizontal", 1),
    Sketcher.Constraint("Vertical", 2),
    Sketcher.Constraint("Horizontal", 3),
    Sketcher.Constraint("DistanceX", 1, 1, 1, 2, 1.213675),
    Sketcher.Constraint("DistanceY", 0, 2, 0, 1, 1.927538),
    Sketcher.Constraint("DistanceY", -1, 1, 0, 2, 5.121521),
    Sketcher.Constraint("DistanceX", -1, 1, 1, 2, 2.258581),
])
pocket7 = body.newObject("PartDesign::Pocket", "Pocket006")
pocket7.Profile = sketch12
pocket7.Length = 0.5

# Sketch on XY plane
sketch13 = body.newObject("Sketcher::SketchObject", "Sketch012")
sketch13.AttachmentSupport = (doc.getObject("XY_Plane"), [""])
sketch13.MapMode = "FlatFace"
sketch13.AttachmentOffset = App.Placement(Vector(0, 0, 2.5), App.Rotation())
add_polygon(sketch13, [(7.674297, 9.92335), (7.674297, 6.024876), (9.645197, 6.024876), (9.645197, 9.92335)])  # lines 0-3
sketch13.addConstraint([
    Sketcher.Constraint("Vertical", 0),
    Sketcher.Constraint("Horizontal", 1),
    Sketcher.Constraint("Vertical", 2),
    Sketcher.Constraint("Horizontal", 3),
    Sketcher.Constraint("DistanceX", 1, 1, 1, 2, 1.9709),
    Sketcher.Constraint("DistanceY", 0, 2, 0, 1, 3.898474),
    Sketcher.Constraint("DistanceY", -1, 1, 2, 2, 9.92335),
    Sketcher.Constraint("DistanceX", -1, 1, 0, 2, 7.674297),
])
pad6 = body.newObject("PartDesign::Pad", "Pad005")
pad6.Profile = sketch13
pad6.Length = 0.25
doc.recompute()

chamfer2 = body.newObject("PartDesign::Chamfer", "Chamfer001")
chamfer2.Base = (pad6, edges_at(pad6, [
    (4.252, 10.712, 1.75),
    (5.464, 10.712, 1.75),
    (3.757, 9.905, 1.75),
    (5.977, 9.905, 1.75),
    (3.757, 11.518, 1.75),
    (5.977, 11.518, 1.75),
    (6.491, 10.712, 1.75),
    (3.262, 10.712, 1.75),
]))
chamfer2.Size = 0.2

# Sketch on YZ plane
sketch14 = body.newObject("Sketcher::SketchObject", "Sketch013")
sketch14.AttachmentSupport = (doc.getObject("YZ_Plane"), [""])
sketch14.MapMode = "FlatFace"
sketch14.AttachmentOffset = App.Placement(Vector(0, 0, 17.5), App.Rotation())
sketch14.addGeometry([
    Part.LineSegment(Vector(3.2, 1.2, 0), Vector(8.9, 1.2, 0)),  # 0
    Part.ArcOfCircle(Part.Circle(Vector(8.9, 2.6, 0), Vector(0, 0, 1), 1.4), math.radians(-90), math.radians(90)),  # 1
    Part.LineSegment(Vector(8.9, 4, 0), Vector(3.2, 4, 0)),  # 2
    Part.ArcOfCircle(Part.Circle(Vector(3.2, 2.6, 0), Vector(0, 0, 1), 1.4), math.radians(90), math.radians(270)),  # 3
    Part.LineSegment(Vector(8.9, 2.2, 0), Vector(3.2, 2.2, 0)),  # 4
    Part.ArcOfCircle(Part.Circle(Vector(3.2, 2.6, 0), Vector(0, 0, 1), 0.4), math.radians(90), math.radians(270)),  # 5
    Part.LineSegment(Vector(3.2, 3, 0), Vector(8.9, 3, 0)),  # 6
    Part.ArcOfCircle(Part.Circle(Vector(8.9, 2.6, 0), Vector(0, 0, 1), 0.4), math.radians(-90), math.radians(90)),  # 7
], False)
sketch14.addConstraint([
    Sketcher.Constraint("Tangent", 0, 2, 1, 1),
    Sketcher.Constraint("Tangent", 1, 2, 2, 1),
    Sketcher.Constraint("Tangent", 2, 2, 3, 1),
    Sketcher.Constraint("Tangent", 3, 2, 0, 1),
    Sketcher.Constraint("Tangent", 4, 2, 5, 2),
    Sketcher.Constraint("Tangent", 5, 1, 6, 1),
    Sketcher.Constraint("Tangent", 6, 2, 7, 2),
    Sketcher.Constraint("Tangent", 7, 1, 4, 1),
    Sketcher.Constraint("Horizontal", 0),
    Sketcher.Constraint("Horizontal", 2),
    Sketcher.Constraint("Horizontal", 4),
    Sketcher.Constraint("Horizontal", 6),
    Sketcher.Constraint("Coincident", 5, 3, 3, 3),
    Sketcher.Constraint("Vertical", 7, 3, 0, 2),
    Sketcher.Constraint("Radius", 1, 1.4),
    Sketcher.Constraint("Radius", 5, 0.4),
    Sketcher.Constraint("DistanceX", 0, 1, 0, 2, 5.7),
    Sketcher.Constraint("DistanceY", -1, 1, 1, 2, 4.0),
    Sketcher.Constraint("DistanceX", -1, 1, 1, 3, 8.9),
])
pocket8 = body.newObject("PartDesign::Pocket", "Pocket007")
pocket8.Profile = sketch14
pocket8.Length = 6.25

doc.recompute()
